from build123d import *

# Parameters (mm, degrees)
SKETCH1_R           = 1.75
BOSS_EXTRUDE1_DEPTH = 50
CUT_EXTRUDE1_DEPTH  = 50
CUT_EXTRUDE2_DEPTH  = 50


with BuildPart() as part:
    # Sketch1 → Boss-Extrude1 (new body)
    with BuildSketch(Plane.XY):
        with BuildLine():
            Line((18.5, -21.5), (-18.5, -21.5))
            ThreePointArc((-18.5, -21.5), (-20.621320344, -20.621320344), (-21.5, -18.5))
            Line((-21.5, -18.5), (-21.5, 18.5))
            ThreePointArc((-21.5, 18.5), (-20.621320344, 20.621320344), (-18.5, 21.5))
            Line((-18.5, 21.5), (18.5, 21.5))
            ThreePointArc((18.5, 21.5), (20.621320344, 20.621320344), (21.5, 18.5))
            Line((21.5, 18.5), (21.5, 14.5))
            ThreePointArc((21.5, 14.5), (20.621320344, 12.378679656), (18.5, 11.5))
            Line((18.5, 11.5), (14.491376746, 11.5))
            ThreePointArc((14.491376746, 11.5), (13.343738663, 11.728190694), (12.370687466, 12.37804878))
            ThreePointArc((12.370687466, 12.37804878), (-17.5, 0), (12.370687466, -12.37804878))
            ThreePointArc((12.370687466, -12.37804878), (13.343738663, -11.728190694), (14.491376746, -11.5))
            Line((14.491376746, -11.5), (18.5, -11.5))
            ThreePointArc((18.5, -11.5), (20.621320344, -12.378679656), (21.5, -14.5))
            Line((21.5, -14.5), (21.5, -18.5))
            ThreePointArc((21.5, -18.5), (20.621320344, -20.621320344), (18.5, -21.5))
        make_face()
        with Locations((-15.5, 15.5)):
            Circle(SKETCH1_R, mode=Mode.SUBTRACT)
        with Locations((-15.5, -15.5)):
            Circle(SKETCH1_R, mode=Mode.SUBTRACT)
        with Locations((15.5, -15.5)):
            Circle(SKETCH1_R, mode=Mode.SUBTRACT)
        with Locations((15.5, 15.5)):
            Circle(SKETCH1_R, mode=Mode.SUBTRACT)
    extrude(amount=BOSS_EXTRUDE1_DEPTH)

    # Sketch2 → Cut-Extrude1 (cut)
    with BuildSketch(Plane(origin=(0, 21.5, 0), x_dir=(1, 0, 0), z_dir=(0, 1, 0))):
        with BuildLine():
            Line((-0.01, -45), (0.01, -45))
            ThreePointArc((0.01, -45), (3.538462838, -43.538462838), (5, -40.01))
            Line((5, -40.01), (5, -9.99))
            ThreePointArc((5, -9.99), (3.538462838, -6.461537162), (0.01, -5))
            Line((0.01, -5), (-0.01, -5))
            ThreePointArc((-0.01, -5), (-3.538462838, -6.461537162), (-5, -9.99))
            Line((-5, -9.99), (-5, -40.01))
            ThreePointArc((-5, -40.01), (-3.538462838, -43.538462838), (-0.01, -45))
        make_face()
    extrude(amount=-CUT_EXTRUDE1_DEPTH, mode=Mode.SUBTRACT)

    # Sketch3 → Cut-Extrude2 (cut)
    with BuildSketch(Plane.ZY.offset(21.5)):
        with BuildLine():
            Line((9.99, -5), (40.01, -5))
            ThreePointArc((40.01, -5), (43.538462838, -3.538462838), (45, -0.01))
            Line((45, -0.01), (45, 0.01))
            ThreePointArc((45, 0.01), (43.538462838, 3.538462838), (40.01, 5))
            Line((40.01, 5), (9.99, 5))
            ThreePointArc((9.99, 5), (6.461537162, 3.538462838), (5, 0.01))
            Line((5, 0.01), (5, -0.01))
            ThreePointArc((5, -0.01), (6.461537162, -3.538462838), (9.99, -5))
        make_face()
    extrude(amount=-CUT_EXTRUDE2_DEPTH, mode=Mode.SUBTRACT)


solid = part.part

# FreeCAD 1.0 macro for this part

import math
import FreeCAD as App
import Part
import Sketcher
from FreeCAD import Vector

doc = App.newDocument("Part")
params = doc.addObject("Spreadsheet::Sheet", "Params")
for row, (alias, value) in enumerate([
    ("sketch1_radius", "3 mm"),
    ("sketch1_diameter", "3.5 mm"),
    ("sketch1_radius2", "17.5 mm"),
    ("sketch1_width", "37 mm"),
    ("sketch1_height", "4 mm"),
    ("pad1_length", "50 mm"),
    ("sketch2_radius", "4.99 mm"),
    ("pocket1_length", "50 mm"),
    ("sketch3_radius", "4.99 mm"),
    ("pocket2_length", "50 mm"),
], start=1):
    params.set(f"A{row}", alias)
    params.set(f"B{row}", "=" + value)
    params.setAlias(f"B{row}", alias)

body = doc.addObject("PartDesign::Body", "Body")

# Sketch on XY plane
sketch1 = body.newObject("Sketcher::SketchObject", "Sketch")
sketch1.AttachmentSupport = (doc.getObject("XY_Plane"), [""])
sketch1.MapMode = "FlatFace"
sketch1.addGeometry([
    Part.LineSegment(Vector(-18.5, -21.5, 0), Vector(18.5, -21.5, 0)),  # 0
    Part.ArcOfCircle(Part.Circle(Vector(18.5, -18.5, 0), Vector(0, 0, 1), 3), math.radians(-90), math.radians(0)),  # 1
    Part.LineSegment(Vector(21.5, -18.5, 0), Vector(21.5, -14.5, 0)),  # 2
    Part.ArcOfCircle(Part.Circle(Vector(18.5, -14.5, 0), Vector(0, 0, 1), 3), math.radians(0), math.radians(90)),  # 3
    Part.LineSegment(Vector(18.5, -11.5, 0), Vector(14.5, -11.5, 0)),  # 4
    Part.ArcOfCircle(Part.Circle(Vector(14.5, -14.5, 0), Vector(0, 0, 1), 3), math.radians(90), math.radians(135)),  # 5
    Part.ArcOfCircle(Part.Circle(Vector(0, 0, 0), Vector(0, 0, 1), 17.5), math.radians(45), math.radians(315)),  # 6
    Part.ArcOfCircle(Part.Circle(Vector(14.5, 14.5, 0), Vector(0, 0, 1), 3), math.radians(-135), math.radians(-90)),  # 7
    Part.LineSegment(Vector(14.5, 11.5, 0), Vector(18.5, 11.5, 0)),  # 8
    Part.ArcOfCircle(Part.Circle(Vector(18.5, 14.5, 0), Vector(0, 0, 1), 3), math.radians(-90), math.radians(0)),  # 9
    Part.LineSegment(Vector(21.5, 14.5, 0), Vector(21.5, 18.5, 0)),  # 10
    Part.ArcOfCircle(Part.Circle(Vector(18.5, 18.5, 0), Vector(0, 0, 1), 3), math.radians(0), math.radians(90)),  # 11
    Part.LineSegment(Vector(18.5, 21.5, 0), Vector(-18.5, 21.5, 0)),  # 12
    Part.ArcOfCircle(Part.Circle(Vector(-18.5, 18.5, 0), Vector(0, 0, 1), 3), math.radians(90), math.radians(180)),  # 13
    Part.LineSegment(Vector(-21.5, 18.5, 0), Vector(-21.5, -18.5, 0)),  # 14
    Part.ArcOfCircle(Part.Circle(Vector(-18.5, -18.5, 0), Vector(0, 0, 1), 3), math.radians(180), math.radians(270)),  # 15
    Part.Circle(Vector(15.5, -15.5, 0), Vector(0, 0, 1), 1.8),  # 16
    Part.Circle(Vector(-15.5, -15.5, 0), Vector(0, 0, 1), 1.8),  # 17
    Part.Circle(Vector(15.5, 15.5, 0), Vector(0, 0, 1), 1.8),  # 18
    Part.Circle(Vector(-15.5, 15.5, 0), Vector(0, 0, 1), 1.8),  # 19
], False)
sketch1.addConstraint([
    Sketcher.Constraint("Tangent", 0, 2, 1, 1),
    Sketcher.Constraint("Tangent", 1, 2, 2, 1),
    Sketcher.Constraint("Tangent", 2, 2, 3, 1),
    Sketcher.Constraint("Tangent", 3, 2, 4, 1),
    Sketcher.Constraint("Tangent", 4, 2, 5, 1),
    Sketcher.Constraint("Tangent", 5, 2, 6, 2),
    Sketcher.Constraint("Tangent", 6, 1, 7, 1),
    Sketcher.Constraint("Tangent", 7, 2, 8, 1),
    Sketcher.Constraint("Tangent", 8, 2, 9, 1),
    Sketcher.Constraint("Tangent", 9, 2, 10, 1),
    Sketcher.Constraint("Tangent", 10, 2, 11, 1),
    Sketcher.Constraint("Tangent", 11, 2, 12, 1),
    Sketcher.Constraint("Tangent", 12, 2, 13, 1),
    Sketcher.Constraint("Tangent", 13, 2, 14, 1),
    Sketcher.Constraint("Tangent", 14, 2, 15, 1),
    Sketcher.Constraint("Tangent", 15, 2, 0, 1),
    Sketcher.Constraint("Horizontal", 0),
    Sketcher.Constraint("Vertical", 2),
    Sketcher.Constraint("Horizontal", 4),
    Sketcher.Constraint("Horizontal", 8),
    Sketcher.Constraint("Vertical", 10),
    Sketcher.Constraint("Horizontal", 12),
    Sketcher.Constraint("Vertical", 14),
    Sketcher.Constraint("Coincident", 6, 3, -1, 1),
    Sketcher.Constraint("Equal", 1, 3),
    Sketcher.Constraint("Equal", 3, 5),
    Sketcher.Constraint("Equal", 5, 7),
    Sketcher.Constraint("Equal", 7, 9),
    Sketcher.Constraint("Equal", 9, 11),
    Sketcher.Constraint("Equal", 11, 13),
    Sketcher.Constraint("Equal", 13, 15),
    Sketcher.Constraint("Equal", 16, 17),
    Sketcher.Constraint("Equal", 17, 18),
    Sketcher.Constraint("Equal", 18, 19),
    Sketcher.Constraint("Symmetric", 1, 3, 13, 3, -1, 1),
    Sketcher.Constraint("Symmetric", 17, 3, 18, 3, -1, 1),
    Sketcher.Constraint("Symmetric", 16, 3, 19, 3, -1, 1),
    Sketcher.Constraint("Symmetric", 16, 3, 17, 3, -2),
    Sketcher.Constraint("Symmetric", 3, 3, 9, 3, -1),
    Sketcher.Constraint("Equal", 12, 14),
    Sketcher.Constraint("Radius", 1, 3.0),
    Sketcher.Constraint("Diameter", 16, 3.5),
    Sketcher.Constraint("Radius", 6, 17.5),
    Sketcher.Constraint("DistanceX", 0, 1, 0, 2, 37.0),
    Sketcher.Constraint("DistanceY", 2, 1, 2, 2, 4.0),
    Sketcher.Constraint("DistanceY", 16, 3, 5, 3, 1.0),
    Sketcher.Constraint("DistanceX", 16, 3, 3, 3, 3.0),
])
sketch1.setExpression("Constraints[40]", "Params.sketch1_radius")
sketch1.setExpression("Constraints[41]", "Params.sketch1_diameter")
sketch1.setExpression("Constraints[42]", "Params.sketch1_radius2")
sketch1.setExpression("Constraints[43]", "Params.sketch1_width")
sketch1.setExpression("Constraints[44]", "Params.sketch1_height")
pad1 = body.newObject("PartDesign::Pad", "Pad")
pad1.Profile = sketch1
pad1.setExpression("Length", "Params.pad1_length")

# Sketch on XZ plane
sketch2 = body.newObject("Sketcher::SketchObject", "Sketch001")
sketch2.AttachmentSupport = (doc.getObject("XZ_Plane"), [""])
sketch2.MapMode = "FlatFace"
sketch2.AttachmentOffset = App.Placement(Vector(0, 0, -21.5), App.Rotation())
sketch2.addGeometry([
    Part.LineSegment(Vector(-0.01, 45, 0), Vector(0.01, 45, 0)),  # 0
    Part.ArcOfCircle(Part.Circle(Vector(0.01, 40.01, 0), Vector(0, 0, 1), 4.99), math.radians(0), math.radians(90)),  # 1
    Part.LineSegment(Vector(5, 40.01, 0), Vector(5, 9.99, 0)),  # 2
    Part.ArcOfCircle(Part.Circle(Vector(0.01, 9.99, 0), Vector(0, 0, 1), 4.99), math.radians(-90), math.radians(0)),  # 3
    Part.LineSegment(Vector(0.01, 5, 0), Vector(-0.01, 5, 0)),  # 4
    Part.ArcOfCircle(Part.Circle(Vector(-0.01, 9.99, 0), Vector(0, 0, 1), 4.99), math.radians(180), math.radians(270)),  # 5
    Part.LineSegment(Vector(-5, 9.99, 0), Vector(-5, 40.01, 0)),  # 6
    Part.ArcOfCircle(Part.Circle(Vector(-0.01, 40.01, 0), Vector(0, 0, 1), 4.99), math.radians(90), math.radians(180)),  # 7
], False)
sketch2.addConstraint([
    Sketcher.Constraint("Tangent", 0, 2, 1, 2),
    Sketcher.Constraint("Tangent", 1, 1, 2, 1),
    Sketcher.Constraint("Tangent", 2, 2, 3, 2),
    Sketcher.Constraint("Tangent", 3, 1, 4, 1),
    Sketcher.Constraint("Tangent", 4, 2, 5, 2),
    Sketcher.Constraint("Tangent", 5, 1, 6, 1),
    Sketcher.Constraint("Tangent", 6, 2, 7, 2),
    Sketcher.Constraint("Tangent", 7, 1, 0, 1),
    Sketcher.Constraint("Horizontal", 0),
    Sketcher.Constraint("Vertical", 2),
    Sketcher.Constraint("Horizontal", 4),
    Sketcher.Constraint("Vertical", 6),
    Sketcher.Constraint("Equal", 1, 3),
    Sketcher.Constraint("Equal", 3, 5),
    Sketcher.Constraint("Equal", 5, 7),
    Sketcher.Constraint("Radius", 1, 4.99),
    Sketcher.Constraint("DistanceY", -1, 1, 0, 2, 45.0),
    Sketcher.Constraint("DistanceX", -1, 1, 1, 1, 5.0),
    Sketcher.Constraint("DistanceY", -1, 1, 3, 1, 5.0),
    Sketcher.Constraint("DistanceX", 5, 1, -1, 1, 5.0),
])
sketch2.setExpression("Constraints[15]", "Params.sketch2_radius")
pocket1 = body.newObject("PartDesign::Pocket", "Pocket")
pocket1.Profile = sketch2
pocket1.setExpression("Length", "Params.pocket1_length")
pocket1.Reversed = True

# Sketch on YZ plane
sketch3 = body.newObject("Sketcher::SketchObject", "Sketch002")
sketch3.AttachmentSupport = (doc.getObject("YZ_Plane"), [""])
sketch3.MapMode = "FlatFace"
sketch3.AttachmentOffset = App.Placement(Vector(0, 0, -21.5), App.Rotation())
sketch3.addGeometry([
    Part.LineSegment(Vector(-5, 9.99, 0), Vector(-5, 40.01, 0)),  # 0
    Part.ArcOfCircle(Part.Circle(Vector(-0.01, 40.01, 0), Vector(0, 0, 1), 4.99), math.radians(90), math.radians(180)),  # 1
    Part.LineSegment(Vector(-0.01, 45, 0), Vector(0.01, 45, 0)),  # 2
    Part.ArcOfCircle(Part.Circle(Vector(0.01, 40.01, 0), Vector(0, 0, 1), 4.99), math.radians(0), math.radians(90)),  # 3
    Part.LineSegment(Vector(5, 40.01, 0), Vector(5, 9.99, 0)),  # 4
    Part.ArcOfCircle(Part.Circle(Vector(0.01, 9.99, 0), Vector(0, 0, 1), 4.99), math.radians(-90), math.radians(0)),  # 5
    Part.LineSegment(Vector(0.01, 5, 0), Vector(-0.01, 5, 0)),  # 6
    Part.ArcOfCircle(Part.Circle(Vector(-0.01, 9.99, 0), Vector(0, 0, 1), 4.99), math.radians(180), math.radians(270)),  # 7
], False)
sketch3.addConstraint([
    Sketcher.Constraint("Tangent", 0, 2, 1, 2),
    Sketcher.Constraint("Tangent", 1, 1, 2, 1),
    Sketcher.Constraint("Tangent", 2, 2, 3, 2),
    Sketcher.Constraint("Tangent", 3, 1, 4, 1),
    Sketcher.Constraint("Tangent", 4, 2, 5, 2),
    Sketcher.Constraint("Tangent", 5, 1, 6, 1),
    Sketcher.Constraint("Tangent", 6, 2, 7, 2),
    Sketcher.Constraint("Tangent", 7, 1, 0, 1),
    Sketcher.Constraint("Vertical", 0),
    Sketcher.Constraint("Horizontal", 2),
    Sketcher.Constraint("Vertical", 4),
    Sketcher.Constraint("Horizontal", 6),
    Sketcher.Constraint("Equal", 1, 3),
    Sketcher.Constraint("Equal", 3, 5),
    Sketcher.Constraint("Equal", 5, 7),
    Sketcher.Constraint("Radius", 1, 4.99),
    Sketcher.Constraint("DistanceX", 0, 2, -1, 1, 5.0),
    Sketcher.Constraint("DistanceY", -1, 1, 1, 1, 45.0),
    Sketcher.Constraint("DistanceX", -1, 1, 3, 1, 5.0),
    Sketcher.Constraint("DistanceY", -1, 1, 5, 1, 5.0),
])
sketch3.setExpression("Constraints[15]", "Params.sketch3_radius")
pocket2 = body.newObject("PartDesign::Pocket", "Pocket001")
pocket2.Profile = sketch3
pocket2.setExpression("Length", "Params.pocket2_length")
pocket2.Reversed = True

doc.recompute()
